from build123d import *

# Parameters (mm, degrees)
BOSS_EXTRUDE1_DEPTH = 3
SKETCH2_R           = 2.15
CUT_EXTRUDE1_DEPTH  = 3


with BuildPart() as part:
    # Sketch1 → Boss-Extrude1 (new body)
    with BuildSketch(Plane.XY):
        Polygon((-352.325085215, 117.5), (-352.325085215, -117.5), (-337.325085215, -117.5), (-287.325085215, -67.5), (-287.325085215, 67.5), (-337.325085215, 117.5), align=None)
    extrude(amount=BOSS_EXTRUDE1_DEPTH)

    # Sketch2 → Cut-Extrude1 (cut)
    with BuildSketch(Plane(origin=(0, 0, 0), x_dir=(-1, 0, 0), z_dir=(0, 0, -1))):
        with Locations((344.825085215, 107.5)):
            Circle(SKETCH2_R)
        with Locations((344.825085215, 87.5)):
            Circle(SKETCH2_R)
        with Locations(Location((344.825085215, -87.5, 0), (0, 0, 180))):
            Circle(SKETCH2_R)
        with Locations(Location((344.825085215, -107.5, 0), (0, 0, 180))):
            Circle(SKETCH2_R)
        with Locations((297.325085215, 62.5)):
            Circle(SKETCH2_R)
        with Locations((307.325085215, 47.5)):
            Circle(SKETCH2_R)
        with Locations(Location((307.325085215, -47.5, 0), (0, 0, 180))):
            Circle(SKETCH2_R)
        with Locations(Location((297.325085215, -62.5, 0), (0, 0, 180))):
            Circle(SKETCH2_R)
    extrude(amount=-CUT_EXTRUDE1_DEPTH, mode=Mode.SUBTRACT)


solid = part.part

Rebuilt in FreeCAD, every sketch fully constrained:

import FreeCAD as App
import Part
import Sketcher
Q = App.Units.Quantity


def add_polygon(sketch, points):
    """Adds a closed chain of lines whose ends are joined by coincident constraints."""
    first, n = sketch.GeometryCount, len(points)
    for a, b in zip(points, points[1:] + points[:1]):
        sketch.addGeometry(Part.LineSegment(App.Vector(*a, 0), App.Vector(*b, 0)), False)
    for i in range(n):
        sketch.addConstraint(Sketcher.Constraint("Coincident", first + i, 2, first + (i + 1) % n, 1))

doc = App.newDocument("Part")
params = doc.addObject("Spreadsheet::Sheet", "Params")
for row, (alias, value) in enumerate([
    ("sketch1_width", "15 mm"),
    ("sketch1_height", "235 mm"),
    ("sketch1_height2", "135 mm"),
    ("pad1_length", "3 mm"),
    ("sketch2_diameter", "4.3 mm"),
    ("pocket1_length", "3 mm"),
], start=1):
    params.set(f"A{row}", alias)
    params.set(f"B{row}", "=" + value)
    params.setAlias(f"B{row}", alias)

body = doc.addObject("PartDesign::Body", "Body")

# Sketch on XY plane
sketch1 = body.newObject("Sketcher::SketchObject", "Sketch")
sketch1.AttachmentSupport = (doc.getObject("XY_Plane"), [""])
sketch1.MapMode = "FlatFace"
add_polygon(sketch1, [(-352.325085, 117.5), (-352.325085, -117.5), (-337.325085, -117.5), (-287.325085, -67.5), (-287.325085, 67.5), (-337.325085, 117.5)])  # lines 0-5
sketch1.addConstraint(Sketcher.Constraint("Vertical", 0))
sketch1.addConstraint(Sketcher.Constraint("Horizontal", 1))
sketch1.addConstraint(Sketcher.Constraint("Vertical", 3))
sketch1.addConstraint(Sketcher.Constraint("Horizontal", 5))
sketch1.addConstraint(Sketcher.Constraint("Symmetric", 1, 2, 4, 2, -1))
sketch1.addConstraint(Sketcher.Constraint("Perpendicular", 2, 4))
sketch1.addConstraint(Sketcher.Constraint("Equal", 2, 4))
sketch1.addConstraint(Sketcher.Constraint("DistanceX", 1, 1, 1, 2, Q("15 mm")))
sketch1.addConstraint(Sketcher.Constraint("DistanceY", 0, 2, 0, 1, Q("235 mm")))
sketch1.addConstraint(Sketcher.Constraint("DistanceY", 3, 1, 3, 2, Q("135 mm")))
sketch1.addConstraint(Sketcher.Constraint("DistanceX", 0, 2, -1, 1, Q("352.325085 mm")))
sketch1.setExpression("Constraints[13]", "Params.sketch1_width")
sketch1.setExpression("Constraints[14]", "Params.sketch1_height")
sketch1.setExpression("Constraints[15]", "Params.sketch1_height2")
pad1 = body.newObject("PartDesign::Pad", "Pad")
pad1.Profile = sketch1
pad1.setExpression("Length", "Params.pad1_length")

# Sketch on XY plane
sketch2 = body.newObject("Sketcher::SketchObject", "Sketch001")
sketch2.AttachmentSupport = (doc.getObject("XY_Plane"), [""])
sketch2.MapMode = "FlatFace"
sketch2.addGeometry(Part.Circle(App.Vector(-344.825085, 107.5, 0), App.Vector(0, 0, 1), 2.15), False)
sketch2.addGeometry(Part.Circle(App.Vector(-344.825085, 87.5, 0), App.Vector(0, 0, 1), 2.15), False)
sketch2.addGeometry(Part.Circle(App.Vector(-344.825085, -87.5, 0), App.Vector(0, 0, 1), 2.15), False)
sketch2.addGeometry(Part.Circle(App.Vector(-344.825085, -107.5, 0), App.Vector(0, 0, 1), 2.15), False)
sketch2.addGeometry(Part.Circle(App.Vector(-297.325085, 62.5, 0), App.Vector(0, 0, 1), 2.15), False)
sketch2.addGeometry(Part.Circle(App.Vector(-307.325085, 47.5, 0), App.Vector(0, 0, 1), 2.15), False)
sketch2.addGeometry(Part.Circle(App.Vector(-307.325085, -47.5, 0), App.Vector(0, 0, 1), 2.15), False)
sketch2.addGeometry(Part.Circle(App.Vector(-297.325085, -62.5, 0), App.Vector(0, 0, 1), 2.15), False)
sketch2.addConstraint(Sketcher.Constraint("Equal", 0, 1))
sketch2.addConstraint(Sketcher.Constraint("Equal", 1, 2))
sketch2.addConstraint(Sketcher.Constraint("Equal", 2, 3))
sketch2.addConstraint(Sketcher.Constraint("Equal", 3, 4))
sketch2.addConstraint(Sketcher.Constraint("Equal", 4, 5))
sketch2.addConstraint(Sketcher.Constraint("Equal", 5, 6))
sketch2.addConstraint(Sketcher.Constraint("Equal", 6, 7))
sketch2.addConstraint(Sketcher.Constraint("Symmetric", 1, 3, 2, 3, -1))
sketch2.addConstraint(Sketcher.Constraint("Symmetric", 0, 3, 3, 3, -1))
sketch2.addConstraint(Sketcher.Constraint("Symmetric", 5, 3, 6, 3, -1))
sketch2.addConstraint(Sketcher.Constraint("Symmetric", 4, 3, 7, 3, -1))
sketch2.addConstraint(Sketcher.Constraint("Vertical", 0, 3, 1, 3))
sketch2.addConstraint(Sketcher.Constraint("Diameter", 0, Q("4.3 mm")))
sketch2.addConstraint(Sketcher.Constraint("DistanceY", 1, 3, 0, 3, Q("20 mm")))
sketch2.addConstraint(Sketcher.Constraint("DistanceY", 2, 3, 1, 3, Q("175 mm")))
sketch2.addConstraint(Sketcher.Constraint("DistanceY", 4, 3, 1, 3, Q("25 mm")))
sketch2.addConstraint(Sketcher.Constraint("DistanceX", 5, 3, 4, 3, Q("10 mm")))
sketch2.addConstraint(Sketcher.Constraint("DistanceY", 5, 3, 4, 3, Q("15 mm")))
sketch2.addConstraint(Sketcher.Constraint("DistanceX", 1, 3, 4, 3, Q("47.5 mm")))
sketch2.addConstraint(Sketcher.Constraint("DistanceX", 0, 3, -1, 1, Q("344.825085 mm")))
sketch2.setExpression("Constraints[12]", "Params.sketch2_diameter")
pocket1 = body.newObject("PartDesign::Pocket", "Pocket")
pocket1.Profile = sketch2
pocket1.setExpression("Length", "Params.pocket1_length")
pocket1.Reversed = True

doc.recompute()
